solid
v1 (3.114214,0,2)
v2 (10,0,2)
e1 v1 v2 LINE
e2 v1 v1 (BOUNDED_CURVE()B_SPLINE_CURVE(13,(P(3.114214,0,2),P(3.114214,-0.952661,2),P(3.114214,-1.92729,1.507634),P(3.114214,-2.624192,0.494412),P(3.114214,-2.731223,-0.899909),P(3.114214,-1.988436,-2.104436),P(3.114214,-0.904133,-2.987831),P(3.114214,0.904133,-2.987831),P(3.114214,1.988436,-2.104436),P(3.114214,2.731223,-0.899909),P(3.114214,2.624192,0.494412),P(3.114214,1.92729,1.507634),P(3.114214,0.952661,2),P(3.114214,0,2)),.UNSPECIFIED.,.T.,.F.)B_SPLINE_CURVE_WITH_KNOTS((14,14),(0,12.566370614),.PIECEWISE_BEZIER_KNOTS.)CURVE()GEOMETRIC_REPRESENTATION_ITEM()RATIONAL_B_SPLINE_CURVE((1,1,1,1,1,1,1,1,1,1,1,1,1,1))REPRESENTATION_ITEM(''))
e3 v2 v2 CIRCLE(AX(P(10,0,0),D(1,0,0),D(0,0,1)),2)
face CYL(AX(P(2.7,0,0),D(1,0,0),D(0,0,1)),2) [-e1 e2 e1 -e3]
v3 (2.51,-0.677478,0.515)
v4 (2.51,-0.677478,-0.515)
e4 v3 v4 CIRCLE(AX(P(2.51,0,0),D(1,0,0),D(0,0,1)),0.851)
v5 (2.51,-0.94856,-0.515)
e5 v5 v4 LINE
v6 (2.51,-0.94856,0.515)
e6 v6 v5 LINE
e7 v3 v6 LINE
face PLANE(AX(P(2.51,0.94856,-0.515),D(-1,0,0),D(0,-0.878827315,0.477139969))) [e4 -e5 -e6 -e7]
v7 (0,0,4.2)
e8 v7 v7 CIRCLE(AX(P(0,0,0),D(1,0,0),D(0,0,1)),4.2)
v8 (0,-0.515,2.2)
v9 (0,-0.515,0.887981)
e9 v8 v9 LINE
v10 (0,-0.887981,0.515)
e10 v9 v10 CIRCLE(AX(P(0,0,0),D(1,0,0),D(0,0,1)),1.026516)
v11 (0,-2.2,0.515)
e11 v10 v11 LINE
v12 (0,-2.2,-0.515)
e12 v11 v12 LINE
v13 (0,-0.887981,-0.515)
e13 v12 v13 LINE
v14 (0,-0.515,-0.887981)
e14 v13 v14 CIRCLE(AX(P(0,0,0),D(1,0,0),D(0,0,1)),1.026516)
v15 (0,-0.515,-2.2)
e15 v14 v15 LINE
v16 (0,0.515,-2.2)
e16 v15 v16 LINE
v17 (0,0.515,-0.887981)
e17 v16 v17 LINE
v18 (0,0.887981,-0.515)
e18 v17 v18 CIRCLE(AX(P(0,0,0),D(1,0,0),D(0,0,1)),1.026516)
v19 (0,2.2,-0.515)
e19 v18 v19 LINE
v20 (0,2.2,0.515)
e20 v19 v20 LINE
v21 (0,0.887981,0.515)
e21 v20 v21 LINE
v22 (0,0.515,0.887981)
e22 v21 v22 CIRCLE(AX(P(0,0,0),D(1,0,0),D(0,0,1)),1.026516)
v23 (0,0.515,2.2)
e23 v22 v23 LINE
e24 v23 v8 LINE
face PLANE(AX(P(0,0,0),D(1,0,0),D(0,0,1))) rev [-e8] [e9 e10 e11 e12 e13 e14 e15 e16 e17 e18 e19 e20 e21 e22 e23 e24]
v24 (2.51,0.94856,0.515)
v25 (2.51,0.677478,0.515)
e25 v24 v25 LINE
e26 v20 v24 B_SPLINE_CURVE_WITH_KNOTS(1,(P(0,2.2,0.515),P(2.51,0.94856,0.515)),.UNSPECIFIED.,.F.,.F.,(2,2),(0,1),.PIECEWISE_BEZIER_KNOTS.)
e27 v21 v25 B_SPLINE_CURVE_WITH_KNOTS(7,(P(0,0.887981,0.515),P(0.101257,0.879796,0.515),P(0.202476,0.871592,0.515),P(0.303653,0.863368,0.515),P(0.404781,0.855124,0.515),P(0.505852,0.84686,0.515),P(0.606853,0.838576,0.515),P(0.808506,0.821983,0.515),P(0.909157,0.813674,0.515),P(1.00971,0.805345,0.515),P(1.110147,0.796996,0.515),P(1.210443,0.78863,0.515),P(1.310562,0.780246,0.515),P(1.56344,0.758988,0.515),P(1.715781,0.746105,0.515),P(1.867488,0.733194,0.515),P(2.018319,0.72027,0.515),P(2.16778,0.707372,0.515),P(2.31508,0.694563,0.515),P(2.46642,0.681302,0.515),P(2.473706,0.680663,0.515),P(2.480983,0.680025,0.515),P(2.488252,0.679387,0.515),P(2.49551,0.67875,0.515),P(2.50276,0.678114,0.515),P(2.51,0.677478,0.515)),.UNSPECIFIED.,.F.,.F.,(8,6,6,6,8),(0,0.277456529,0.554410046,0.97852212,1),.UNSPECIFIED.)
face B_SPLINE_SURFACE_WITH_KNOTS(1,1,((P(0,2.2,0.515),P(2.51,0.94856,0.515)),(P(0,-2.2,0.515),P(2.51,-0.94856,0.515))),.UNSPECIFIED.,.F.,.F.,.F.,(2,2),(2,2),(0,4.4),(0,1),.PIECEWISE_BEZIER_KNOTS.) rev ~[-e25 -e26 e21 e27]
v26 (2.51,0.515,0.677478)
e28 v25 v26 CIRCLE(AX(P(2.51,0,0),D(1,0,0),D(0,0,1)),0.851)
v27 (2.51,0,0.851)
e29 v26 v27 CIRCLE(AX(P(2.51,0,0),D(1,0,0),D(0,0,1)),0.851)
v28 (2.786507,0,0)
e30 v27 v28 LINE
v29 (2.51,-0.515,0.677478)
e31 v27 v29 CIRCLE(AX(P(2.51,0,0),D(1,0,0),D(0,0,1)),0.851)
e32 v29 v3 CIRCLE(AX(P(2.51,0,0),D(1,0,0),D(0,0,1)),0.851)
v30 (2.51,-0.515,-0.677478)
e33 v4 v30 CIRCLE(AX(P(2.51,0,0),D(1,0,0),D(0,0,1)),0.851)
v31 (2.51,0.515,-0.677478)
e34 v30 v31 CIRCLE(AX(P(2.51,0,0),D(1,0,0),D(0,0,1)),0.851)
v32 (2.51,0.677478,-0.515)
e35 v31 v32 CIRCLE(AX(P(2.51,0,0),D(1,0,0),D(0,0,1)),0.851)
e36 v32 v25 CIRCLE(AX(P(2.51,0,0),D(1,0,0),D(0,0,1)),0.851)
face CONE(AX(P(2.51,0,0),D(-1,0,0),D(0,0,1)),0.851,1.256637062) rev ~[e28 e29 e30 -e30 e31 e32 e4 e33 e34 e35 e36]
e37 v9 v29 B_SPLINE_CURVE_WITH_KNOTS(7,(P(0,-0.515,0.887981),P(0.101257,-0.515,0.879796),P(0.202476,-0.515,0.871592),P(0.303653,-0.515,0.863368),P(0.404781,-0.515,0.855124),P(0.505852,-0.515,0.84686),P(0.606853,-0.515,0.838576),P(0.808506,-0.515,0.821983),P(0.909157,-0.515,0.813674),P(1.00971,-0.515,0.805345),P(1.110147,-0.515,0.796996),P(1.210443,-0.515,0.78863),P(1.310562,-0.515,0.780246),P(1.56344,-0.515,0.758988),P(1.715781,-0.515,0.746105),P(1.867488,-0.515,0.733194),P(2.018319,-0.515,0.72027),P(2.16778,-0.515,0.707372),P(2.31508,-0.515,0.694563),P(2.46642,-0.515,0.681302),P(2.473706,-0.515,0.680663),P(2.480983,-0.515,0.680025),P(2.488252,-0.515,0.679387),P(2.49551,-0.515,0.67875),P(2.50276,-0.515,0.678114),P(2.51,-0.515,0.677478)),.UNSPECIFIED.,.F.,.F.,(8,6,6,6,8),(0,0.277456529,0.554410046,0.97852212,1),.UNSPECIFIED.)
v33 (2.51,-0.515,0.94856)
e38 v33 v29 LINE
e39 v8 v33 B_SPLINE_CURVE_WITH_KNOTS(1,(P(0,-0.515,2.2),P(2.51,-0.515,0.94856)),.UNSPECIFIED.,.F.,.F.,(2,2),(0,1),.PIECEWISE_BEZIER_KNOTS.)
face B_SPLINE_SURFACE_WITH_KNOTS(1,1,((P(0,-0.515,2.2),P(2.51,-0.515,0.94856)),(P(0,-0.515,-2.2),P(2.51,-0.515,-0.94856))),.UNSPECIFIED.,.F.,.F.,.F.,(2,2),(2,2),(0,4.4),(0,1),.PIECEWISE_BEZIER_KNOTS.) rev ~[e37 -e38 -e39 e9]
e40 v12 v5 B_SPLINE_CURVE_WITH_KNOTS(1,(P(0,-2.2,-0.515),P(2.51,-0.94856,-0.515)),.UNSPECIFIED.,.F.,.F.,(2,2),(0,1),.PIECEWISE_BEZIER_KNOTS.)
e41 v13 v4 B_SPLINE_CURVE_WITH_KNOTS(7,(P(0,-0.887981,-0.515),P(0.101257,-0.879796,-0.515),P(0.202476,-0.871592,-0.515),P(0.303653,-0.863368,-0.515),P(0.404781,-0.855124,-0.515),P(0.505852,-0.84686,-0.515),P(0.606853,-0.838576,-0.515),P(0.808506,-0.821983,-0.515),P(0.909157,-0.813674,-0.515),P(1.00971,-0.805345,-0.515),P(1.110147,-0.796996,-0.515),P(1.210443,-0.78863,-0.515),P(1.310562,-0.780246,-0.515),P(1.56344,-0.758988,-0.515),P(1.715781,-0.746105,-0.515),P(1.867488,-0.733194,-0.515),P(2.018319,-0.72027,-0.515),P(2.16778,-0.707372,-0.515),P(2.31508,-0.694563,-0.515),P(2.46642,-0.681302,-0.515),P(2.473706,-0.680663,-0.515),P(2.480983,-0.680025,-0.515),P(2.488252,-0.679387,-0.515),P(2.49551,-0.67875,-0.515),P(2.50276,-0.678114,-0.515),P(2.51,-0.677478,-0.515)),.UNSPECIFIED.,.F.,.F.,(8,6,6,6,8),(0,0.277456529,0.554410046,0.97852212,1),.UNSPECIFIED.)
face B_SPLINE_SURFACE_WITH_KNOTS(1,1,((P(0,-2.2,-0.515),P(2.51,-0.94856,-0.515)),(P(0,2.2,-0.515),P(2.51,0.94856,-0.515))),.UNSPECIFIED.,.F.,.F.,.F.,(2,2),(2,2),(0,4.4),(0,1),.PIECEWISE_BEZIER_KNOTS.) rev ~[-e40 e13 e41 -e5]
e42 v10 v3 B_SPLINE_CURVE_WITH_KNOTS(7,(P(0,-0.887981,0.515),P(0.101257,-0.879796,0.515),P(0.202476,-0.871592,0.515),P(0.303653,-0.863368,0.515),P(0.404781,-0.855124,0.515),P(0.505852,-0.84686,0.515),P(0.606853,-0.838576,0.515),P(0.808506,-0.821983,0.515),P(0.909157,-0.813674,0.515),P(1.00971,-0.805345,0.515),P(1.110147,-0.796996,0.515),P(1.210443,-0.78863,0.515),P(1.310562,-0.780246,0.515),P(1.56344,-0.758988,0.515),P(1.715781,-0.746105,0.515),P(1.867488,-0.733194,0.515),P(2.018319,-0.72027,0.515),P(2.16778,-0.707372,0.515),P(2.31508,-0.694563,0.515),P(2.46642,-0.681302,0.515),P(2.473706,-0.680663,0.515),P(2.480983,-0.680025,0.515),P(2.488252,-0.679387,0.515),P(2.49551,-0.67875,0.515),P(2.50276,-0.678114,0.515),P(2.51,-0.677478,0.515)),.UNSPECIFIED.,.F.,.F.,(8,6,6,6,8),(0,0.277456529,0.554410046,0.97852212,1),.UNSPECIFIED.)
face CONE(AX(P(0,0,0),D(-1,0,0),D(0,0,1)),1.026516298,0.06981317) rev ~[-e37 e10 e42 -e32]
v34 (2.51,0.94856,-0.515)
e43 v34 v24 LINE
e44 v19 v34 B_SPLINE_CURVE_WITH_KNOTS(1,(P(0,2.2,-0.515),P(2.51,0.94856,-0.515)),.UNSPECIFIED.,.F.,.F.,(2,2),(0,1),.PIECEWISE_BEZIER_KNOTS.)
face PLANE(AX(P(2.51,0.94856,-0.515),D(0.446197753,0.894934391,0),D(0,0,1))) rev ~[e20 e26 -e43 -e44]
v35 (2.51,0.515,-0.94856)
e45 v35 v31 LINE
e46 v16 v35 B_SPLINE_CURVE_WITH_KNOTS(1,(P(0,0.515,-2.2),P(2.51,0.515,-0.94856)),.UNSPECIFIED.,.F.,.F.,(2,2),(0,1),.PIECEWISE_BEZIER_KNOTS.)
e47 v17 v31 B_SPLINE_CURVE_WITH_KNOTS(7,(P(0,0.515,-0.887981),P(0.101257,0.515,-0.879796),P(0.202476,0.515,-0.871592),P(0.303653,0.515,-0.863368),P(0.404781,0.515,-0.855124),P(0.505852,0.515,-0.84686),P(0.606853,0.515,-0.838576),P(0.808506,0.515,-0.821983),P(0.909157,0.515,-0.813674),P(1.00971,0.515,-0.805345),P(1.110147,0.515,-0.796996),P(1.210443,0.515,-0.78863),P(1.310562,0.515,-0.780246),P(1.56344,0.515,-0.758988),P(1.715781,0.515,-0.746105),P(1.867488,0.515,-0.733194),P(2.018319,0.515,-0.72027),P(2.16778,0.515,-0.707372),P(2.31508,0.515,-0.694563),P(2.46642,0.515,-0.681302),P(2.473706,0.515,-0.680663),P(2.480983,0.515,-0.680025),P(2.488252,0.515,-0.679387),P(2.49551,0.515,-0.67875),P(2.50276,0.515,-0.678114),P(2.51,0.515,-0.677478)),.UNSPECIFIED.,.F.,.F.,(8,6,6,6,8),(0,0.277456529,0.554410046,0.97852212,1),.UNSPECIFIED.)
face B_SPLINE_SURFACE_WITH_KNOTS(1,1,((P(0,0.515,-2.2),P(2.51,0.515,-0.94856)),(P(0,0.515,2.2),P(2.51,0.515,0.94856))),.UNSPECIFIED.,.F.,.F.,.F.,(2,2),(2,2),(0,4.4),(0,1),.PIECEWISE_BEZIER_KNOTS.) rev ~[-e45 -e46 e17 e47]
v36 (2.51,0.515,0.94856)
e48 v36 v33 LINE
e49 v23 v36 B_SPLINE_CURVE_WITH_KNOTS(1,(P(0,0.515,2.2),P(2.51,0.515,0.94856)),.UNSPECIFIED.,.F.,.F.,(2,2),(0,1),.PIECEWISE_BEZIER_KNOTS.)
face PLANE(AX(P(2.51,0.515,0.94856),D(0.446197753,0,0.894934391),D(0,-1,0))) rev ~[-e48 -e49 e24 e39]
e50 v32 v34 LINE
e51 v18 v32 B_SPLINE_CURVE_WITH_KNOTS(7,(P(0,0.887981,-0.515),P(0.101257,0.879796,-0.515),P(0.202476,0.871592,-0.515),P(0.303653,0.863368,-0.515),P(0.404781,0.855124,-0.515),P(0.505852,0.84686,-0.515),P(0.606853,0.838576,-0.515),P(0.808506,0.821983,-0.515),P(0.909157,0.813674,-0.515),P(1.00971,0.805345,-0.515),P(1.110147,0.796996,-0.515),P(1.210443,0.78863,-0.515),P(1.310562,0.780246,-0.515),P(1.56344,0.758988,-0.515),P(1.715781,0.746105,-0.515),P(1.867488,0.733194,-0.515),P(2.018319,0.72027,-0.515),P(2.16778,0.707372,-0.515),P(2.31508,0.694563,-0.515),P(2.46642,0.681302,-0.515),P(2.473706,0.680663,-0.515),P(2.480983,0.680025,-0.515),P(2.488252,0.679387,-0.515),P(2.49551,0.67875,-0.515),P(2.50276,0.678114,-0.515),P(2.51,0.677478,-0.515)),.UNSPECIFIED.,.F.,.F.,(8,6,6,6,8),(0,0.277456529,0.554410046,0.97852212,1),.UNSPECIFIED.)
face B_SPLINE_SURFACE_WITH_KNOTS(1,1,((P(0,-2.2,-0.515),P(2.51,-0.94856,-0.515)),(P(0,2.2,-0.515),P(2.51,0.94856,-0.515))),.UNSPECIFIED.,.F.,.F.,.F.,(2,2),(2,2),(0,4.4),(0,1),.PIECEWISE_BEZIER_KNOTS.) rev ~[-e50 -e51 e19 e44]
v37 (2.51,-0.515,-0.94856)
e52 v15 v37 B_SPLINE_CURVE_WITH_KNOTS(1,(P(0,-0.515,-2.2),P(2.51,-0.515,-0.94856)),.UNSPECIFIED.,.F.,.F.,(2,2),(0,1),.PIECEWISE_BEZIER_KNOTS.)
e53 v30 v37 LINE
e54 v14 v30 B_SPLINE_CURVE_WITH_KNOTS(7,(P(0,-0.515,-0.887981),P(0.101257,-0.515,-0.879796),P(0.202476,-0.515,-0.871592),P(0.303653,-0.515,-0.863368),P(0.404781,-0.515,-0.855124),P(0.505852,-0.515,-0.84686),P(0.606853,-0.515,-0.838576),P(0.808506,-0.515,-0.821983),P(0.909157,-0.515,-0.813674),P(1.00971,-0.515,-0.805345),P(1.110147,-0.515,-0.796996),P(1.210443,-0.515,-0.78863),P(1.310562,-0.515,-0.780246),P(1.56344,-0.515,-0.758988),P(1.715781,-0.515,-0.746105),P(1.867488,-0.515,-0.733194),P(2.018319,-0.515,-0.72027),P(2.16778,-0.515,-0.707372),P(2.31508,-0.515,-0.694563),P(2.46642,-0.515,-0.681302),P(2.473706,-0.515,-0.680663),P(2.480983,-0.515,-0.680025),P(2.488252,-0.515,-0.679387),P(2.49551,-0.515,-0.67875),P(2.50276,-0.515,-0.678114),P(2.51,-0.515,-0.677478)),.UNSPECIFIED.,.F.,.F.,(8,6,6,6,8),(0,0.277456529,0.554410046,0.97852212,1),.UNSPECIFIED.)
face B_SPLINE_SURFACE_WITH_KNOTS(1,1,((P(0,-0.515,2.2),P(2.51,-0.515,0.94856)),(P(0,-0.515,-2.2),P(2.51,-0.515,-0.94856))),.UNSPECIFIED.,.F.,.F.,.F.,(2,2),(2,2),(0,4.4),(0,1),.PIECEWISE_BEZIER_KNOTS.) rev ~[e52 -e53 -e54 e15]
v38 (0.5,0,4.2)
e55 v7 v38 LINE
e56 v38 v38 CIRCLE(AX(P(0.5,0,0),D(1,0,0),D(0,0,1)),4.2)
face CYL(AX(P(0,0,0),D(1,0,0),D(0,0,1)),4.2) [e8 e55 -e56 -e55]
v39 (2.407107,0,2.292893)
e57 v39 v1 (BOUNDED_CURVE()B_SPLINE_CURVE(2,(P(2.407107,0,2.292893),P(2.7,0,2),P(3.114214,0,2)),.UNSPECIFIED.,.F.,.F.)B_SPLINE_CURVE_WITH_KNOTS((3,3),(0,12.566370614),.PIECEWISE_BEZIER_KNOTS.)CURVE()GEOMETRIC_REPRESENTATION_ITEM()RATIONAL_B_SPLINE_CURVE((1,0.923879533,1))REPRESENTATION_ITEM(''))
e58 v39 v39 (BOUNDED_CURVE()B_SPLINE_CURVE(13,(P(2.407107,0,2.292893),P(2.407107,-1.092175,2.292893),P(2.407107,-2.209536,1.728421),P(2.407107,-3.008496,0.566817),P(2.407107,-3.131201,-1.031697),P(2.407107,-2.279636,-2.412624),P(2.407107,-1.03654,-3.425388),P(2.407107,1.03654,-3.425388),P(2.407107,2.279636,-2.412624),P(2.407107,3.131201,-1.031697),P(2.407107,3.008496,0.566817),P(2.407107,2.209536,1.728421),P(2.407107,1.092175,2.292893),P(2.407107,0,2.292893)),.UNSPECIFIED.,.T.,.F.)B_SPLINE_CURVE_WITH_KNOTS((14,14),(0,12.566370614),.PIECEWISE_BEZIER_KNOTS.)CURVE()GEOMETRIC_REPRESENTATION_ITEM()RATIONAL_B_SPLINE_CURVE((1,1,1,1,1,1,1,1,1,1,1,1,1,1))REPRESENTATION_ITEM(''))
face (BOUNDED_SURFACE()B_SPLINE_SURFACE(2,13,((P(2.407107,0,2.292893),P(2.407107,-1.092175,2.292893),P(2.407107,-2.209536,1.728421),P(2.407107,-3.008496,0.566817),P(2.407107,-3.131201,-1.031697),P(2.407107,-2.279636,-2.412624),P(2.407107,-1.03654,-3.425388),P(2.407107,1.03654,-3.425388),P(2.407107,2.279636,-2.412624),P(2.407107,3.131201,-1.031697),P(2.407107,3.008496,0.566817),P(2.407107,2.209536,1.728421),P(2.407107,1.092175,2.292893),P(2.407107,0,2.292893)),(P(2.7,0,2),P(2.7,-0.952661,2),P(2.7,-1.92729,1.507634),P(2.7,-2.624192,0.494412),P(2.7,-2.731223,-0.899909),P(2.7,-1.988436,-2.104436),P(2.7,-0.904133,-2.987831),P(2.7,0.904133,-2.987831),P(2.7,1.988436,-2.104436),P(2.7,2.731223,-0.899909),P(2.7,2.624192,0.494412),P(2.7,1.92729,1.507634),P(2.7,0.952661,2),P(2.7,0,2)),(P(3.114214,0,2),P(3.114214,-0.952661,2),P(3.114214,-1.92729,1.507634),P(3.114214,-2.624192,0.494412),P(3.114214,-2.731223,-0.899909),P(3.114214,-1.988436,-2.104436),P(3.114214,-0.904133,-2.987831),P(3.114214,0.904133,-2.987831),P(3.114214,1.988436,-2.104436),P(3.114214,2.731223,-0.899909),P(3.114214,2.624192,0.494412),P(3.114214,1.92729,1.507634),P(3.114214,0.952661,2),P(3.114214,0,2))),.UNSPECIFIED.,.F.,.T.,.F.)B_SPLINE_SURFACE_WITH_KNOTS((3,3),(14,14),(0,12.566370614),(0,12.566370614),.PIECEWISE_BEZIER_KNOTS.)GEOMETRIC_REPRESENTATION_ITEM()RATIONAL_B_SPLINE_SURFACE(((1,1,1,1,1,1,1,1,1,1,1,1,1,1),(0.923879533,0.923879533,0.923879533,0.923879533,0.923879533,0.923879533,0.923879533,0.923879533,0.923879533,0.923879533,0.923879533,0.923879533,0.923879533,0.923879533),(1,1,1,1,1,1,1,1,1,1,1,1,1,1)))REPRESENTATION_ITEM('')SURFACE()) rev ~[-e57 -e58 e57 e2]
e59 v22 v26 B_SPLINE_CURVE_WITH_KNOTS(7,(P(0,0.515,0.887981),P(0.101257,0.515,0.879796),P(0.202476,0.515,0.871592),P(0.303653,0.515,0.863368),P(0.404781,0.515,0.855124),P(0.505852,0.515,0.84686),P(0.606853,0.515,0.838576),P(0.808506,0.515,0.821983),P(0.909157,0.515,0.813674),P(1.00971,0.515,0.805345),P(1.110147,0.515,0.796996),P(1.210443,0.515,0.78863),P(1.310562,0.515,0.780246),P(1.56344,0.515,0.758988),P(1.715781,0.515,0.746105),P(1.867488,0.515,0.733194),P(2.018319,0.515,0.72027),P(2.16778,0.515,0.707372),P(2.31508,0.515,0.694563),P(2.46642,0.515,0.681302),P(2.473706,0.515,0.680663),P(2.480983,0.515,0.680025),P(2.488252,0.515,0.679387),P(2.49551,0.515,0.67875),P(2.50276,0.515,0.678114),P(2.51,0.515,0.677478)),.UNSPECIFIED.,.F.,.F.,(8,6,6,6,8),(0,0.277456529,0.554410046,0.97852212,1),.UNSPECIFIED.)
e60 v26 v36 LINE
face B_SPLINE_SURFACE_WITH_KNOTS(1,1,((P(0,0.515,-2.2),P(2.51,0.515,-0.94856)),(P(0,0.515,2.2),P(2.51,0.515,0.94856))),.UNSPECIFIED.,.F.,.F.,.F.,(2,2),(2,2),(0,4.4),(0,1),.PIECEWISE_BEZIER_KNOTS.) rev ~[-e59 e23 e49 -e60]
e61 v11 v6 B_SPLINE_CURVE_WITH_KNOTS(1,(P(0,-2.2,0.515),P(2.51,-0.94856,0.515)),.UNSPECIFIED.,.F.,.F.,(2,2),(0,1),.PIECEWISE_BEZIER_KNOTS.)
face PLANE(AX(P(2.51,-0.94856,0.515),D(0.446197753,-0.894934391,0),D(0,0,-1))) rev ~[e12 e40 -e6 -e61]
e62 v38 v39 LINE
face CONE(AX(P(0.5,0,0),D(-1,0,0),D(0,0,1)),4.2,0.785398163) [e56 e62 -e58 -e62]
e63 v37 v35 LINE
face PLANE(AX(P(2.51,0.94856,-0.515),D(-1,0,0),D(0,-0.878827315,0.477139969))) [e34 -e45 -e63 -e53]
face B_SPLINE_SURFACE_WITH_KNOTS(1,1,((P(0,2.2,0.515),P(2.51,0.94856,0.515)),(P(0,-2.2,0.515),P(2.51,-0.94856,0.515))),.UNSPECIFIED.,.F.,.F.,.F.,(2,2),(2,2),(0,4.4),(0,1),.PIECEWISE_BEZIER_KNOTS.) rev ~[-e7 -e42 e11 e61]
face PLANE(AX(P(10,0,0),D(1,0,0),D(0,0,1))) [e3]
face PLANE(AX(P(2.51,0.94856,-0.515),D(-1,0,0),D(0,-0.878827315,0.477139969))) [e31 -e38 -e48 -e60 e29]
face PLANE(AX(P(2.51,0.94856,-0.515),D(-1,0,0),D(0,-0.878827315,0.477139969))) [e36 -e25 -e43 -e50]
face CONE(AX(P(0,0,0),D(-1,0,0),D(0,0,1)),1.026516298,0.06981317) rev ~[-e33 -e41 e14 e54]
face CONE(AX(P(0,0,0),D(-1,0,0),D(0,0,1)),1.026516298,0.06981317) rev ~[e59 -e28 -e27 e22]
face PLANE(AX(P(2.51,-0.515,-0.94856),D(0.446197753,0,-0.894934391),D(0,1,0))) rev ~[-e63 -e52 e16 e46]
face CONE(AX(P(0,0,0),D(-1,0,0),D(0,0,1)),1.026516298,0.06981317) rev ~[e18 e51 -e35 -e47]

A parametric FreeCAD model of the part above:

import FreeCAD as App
import Part
import Sketcher
Q = App.Units.Quantity


def edges_at(feature, points):
    """Names of the edges that pass closest to the given points."""
    edges = feature.Shape.Edges
    near = lambda p: min(range(len(edges)), key=lambda i: edges[i].distToShape(Part.Vertex(*p))[0])
    return sorted({f"Edge{near(p) + 1}" for p in points})


def add_polygon(sketch, points):
    """Adds a closed chain of lines whose ends are joined by coincident constraints."""
    first, n = sketch.GeometryCount, len(points)
    for a, b in zip(points, points[1:] + points[:1]):
        sketch.addGeometry(Part.LineSegment(App.Vector(*a, 0), App.Vector(*b, 0)), False)
    for i in range(n):
        sketch.addConstraint(Sketcher.Constraint("Coincident", first + i, 2, first + (i + 1) % n, 1))

doc = App.newDocument("Part")
params = doc.addObject("Spreadsheet::Sheet", "Params")
for row, (alias, value) in enumerate([
    ("sketch1_width", "10 mm"),
    ("sketch1_height", "2 mm"),
    ("sketch1_width2", "7.3 mm"),
    ("sketch1_width3", "0.5 mm"),
    ("revolution_angle", "360 deg"),
    ("fillet_radius", "1 mm"),
    ("sketch2_width", "4.4 mm"),
    ("sketch2_height", "1.03 mm"),
    ("sketch3_height", "1.03 mm"),
    ("groove_angle", "360 deg"),
], start=1):
    params.set(f"A{row}", alias)
    params.set(f"B{row}", "=" + value)
    params.setAlias(f"B{row}", alias)

body = doc.addObject("PartDesign::Body", "Body")

sketch1 = doc.addObject("Sketcher::SketchObject", "Sketch")
body.addObject(sketch1)
sketch1.AttachmentSupport = (doc.XY_Plane, [""])
sketch1.MapMode = "FlatFace"
add_polygon(sketch1, [(0, 4.2), (0, 0), (10, 0), (10, 2), (2.7, 2), (0.5, 4.2)])
sketch1.addConstraint([
    Sketcher.Constraint("Vertical", 0),
    Sketcher.Constraint("Horizontal", 1),
    Sketcher.Constraint("Vertical", 2),
    Sketcher.Constraint("Horizontal", 3),
    Sketcher.Constraint("Horizontal", 5),
    Sketcher.Constraint("Coincident", 0, 2, -1, 1),
    Sketcher.Constraint("DistanceX", 1, 1, 1, 2, Q("10 mm")),
    Sketcher.Constraint("DistanceY", 2, 1, 2, 2, Q("2 mm")),
    Sketcher.Constraint("Angle", 4, Q("135 deg")),
    Sketcher.Constraint("DistanceX", 3, 2, 3, 1, Q("7.3 mm")),
    Sketcher.Constraint("DistanceX", 5, 2, 5, 1, Q("0.5 mm")),
])
sketch1.setExpression("Constraints[12]", "Params.sketch1_width")
sketch1.setExpression("Constraints[13]", "Params.sketch1_height")
sketch1.setExpression("Constraints[15]", "Params.sketch1_width2")
sketch1.setExpression("Constraints[16]", "Params.sketch1_width3")
revolution = doc.addObject("PartDesign::Revolution", "Revolution")
body.addObject(revolution)
revolution.Profile = sketch1
revolution.ReferenceAxis = (sketch1, ["H_Axis"])
revolution.setExpression("Angle", "Params.revolution_angle")
doc.recompute()

fillet = doc.addObject("PartDesign::Fillet", "Fillet")
body.addObject(fillet)
fillet.Base = (revolution, edges_at(revolution, [(2.7, 0, -2)]))
fillet.setExpression("Radius", "Params.fillet_radius")

sketch2 = doc.addObject("Sketcher::SketchObject", "Sketch001")
body.addObject(sketch2)
sketch2.AttachmentSupport = (doc.YZ_Plane, [""])
sketch2.MapMode = "FlatFace"
add_polygon(sketch2, [(2.2, 0.515), (2.2, -0.515), (-2.2, -0.515), (-2.2, 0.515)])
sketch2.addConstraint([
    Sketcher.Constraint("Vertical", 0),
    Sketcher.Constraint("Horizontal", 1),
    Sketcher.Constraint("Vertical", 2),
    Sketcher.Constraint("Horizontal", 3),
    Sketcher.Constraint("Symmetric", 0, 2, 2, 2, -1, 1),
    Sketcher.Constraint("DistanceX", 1, 2, 1, 1, Q("4.4 mm")),
    Sketcher.Constraint("DistanceY", 0, 2, 0, 1, Q("1.03 mm")),
])
sketch2.setExpression("Constraints[9]", "Params.sketch2_width")
sketch2.setExpression("Constraints[10]", "Params.sketch2_height")

sketch3 = doc.addObject("Sketcher::SketchObject", "Sketch002")
body.addObject(sketch3)
sketch3.AttachmentSupport = (doc.YZ_Plane, [""])
sketch3.MapMode = "FlatFace"
sketch3.AttachmentOffset = App.Placement(App.Vector(0, 0, 2.51), App.Rotation())
add_polygon(sketch3, [(0.94856, 0.515), (0.94856, -0.515), (-0.94856, -0.515), (-0.94856, 0.515)])
sketch3.addConstraint([
    Sketcher.Constraint("Vertical", 0),
    Sketcher.Constraint("Horizontal", 1),
    Sketcher.Constraint("Vertical", 2),
    Sketcher.Constraint("Horizontal", 3),
    Sketcher.Constraint("Symmetric", 0, 2, 2, 2, -1, 1),
    Sketcher.Constraint("DistanceY", 0, 2, 0, 1, Q("1.03 mm")),
    Sketcher.Constraint("DistanceX", 1, 2, 1, 1, Q("1.897121 mm")),
])
sketch3.setExpression("Constraints[9]", "Params.sketch3_height")

subtractiveloft = doc.addObject("PartDesign::SubtractiveLoft", "SubtractiveLoft")
body.addObject(subtractiveloft)
subtractiveloft.Profile = sketch2
subtractiveloft.Sections = [sketch3]
doc.recompute()

polarpattern = doc.addObject("PartDesign::PolarPattern", "PolarPattern")
body.addObject(polarpattern)
polarpattern.Originals = [subtractiveloft]
polarpattern.Axis = (doc.X_Axis, [""])
polarpattern.Angle = 90
polarpattern.Occurrences = 2
body.Tip = polarpattern

sketch4 = doc.addObject("Sketcher::SketchObject", "Sketch003")
body.addObject(sketch4)
sketch4.AttachmentSupport = (doc.XY_Plane, [""])
sketch4.MapMode = "FlatFace"
add_polygon(sketch4, [(0, 1.026516), (0, 0), (2.786507, 0), (2.51, 0.851)])
sketch4.addConstraint([
    Sketcher.Constraint("Vertical", 0),
    Sketcher.Constraint("Horizontal", 1),
    Sketcher.Constraint("Coincident", 0, 2, -1, 1),
    Sketcher.Constraint("Angle", 2, Q("108 deg")),
    Sketcher.Constraint("Angle", 3, Q("176 deg")),
    Sketcher.Constraint("DistanceX", -1, 1, 2, 2, Q("2.51 mm")),
    Sketcher.Constraint("DistanceY", -1, 1, 2, 2, Q("0.851 mm")),
])
groove = doc.addObject("PartDesign::Groove", "Groove")
body.addObject(groove)
groove.Profile = sketch4
groove.ReferenceAxis = (sketch4, ["H_Axis"])
groove.setExpression("Angle", "Params.groove_angle")

doc.recompute()
